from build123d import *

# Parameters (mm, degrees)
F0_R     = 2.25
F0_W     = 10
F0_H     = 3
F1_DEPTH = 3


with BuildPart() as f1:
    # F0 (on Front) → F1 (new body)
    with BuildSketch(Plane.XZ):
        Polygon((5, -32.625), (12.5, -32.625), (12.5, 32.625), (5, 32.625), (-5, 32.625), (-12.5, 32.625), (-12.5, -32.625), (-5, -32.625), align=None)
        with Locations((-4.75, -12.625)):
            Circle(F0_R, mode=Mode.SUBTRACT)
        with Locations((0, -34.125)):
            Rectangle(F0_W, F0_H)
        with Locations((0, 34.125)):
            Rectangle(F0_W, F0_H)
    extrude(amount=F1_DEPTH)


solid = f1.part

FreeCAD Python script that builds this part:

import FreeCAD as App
import Part
import Sketcher


def add_polygon(sketch, points):
    """Adds a closed chain of lines whose ends are joined by coincident constraints."""
    first, n = sketch.GeometryCount, len(points)
    for a, b in zip(points, points[1:] + points[:1]):
        sketch.addGeometry(Part.LineSegment(App.Vector(*a, 0), App.Vector(*b, 0)), False)
    for i in range(n):
        sketch.addConstraint(Sketcher.Constraint("Coincident", first + i, 2, first + (i + 1) % n, 1))

doc = App.newDocument("Part")
params = doc.addObject("Spreadsheet::Sheet", "Params")
for row, (alias, value) in enumerate([
    ("sketch1_diameter", "4.5 mm"),
    ("sketch1_width", "10 mm"),
    ("sketch1_height", "3 mm"),
    ("sketch1_width2", "7.5 mm"),
    ("sketch1_height2", "65.25 mm"),
    ("pad1_length", "3 mm"),
], start=1):
    params.set(f"A{row}", alias)
    params.set(f"B{row}", "=" + value)
    params.setAlias(f"B{row}", alias)

body = doc.addObject("PartDesign::Body", "Body")

# Sketch on XZ plane
sketch1 = body.newObject("Sketcher::SketchObject", "Sketch")
sketch1.AttachmentSupport = (doc.getObject("XZ_Plane"), [""])
sketch1.MapMode = "FlatFace"
add_polygon(sketch1, [(12.5, -32.625), (12.5, 32.625), (5, 32.625), (5, 35.625), (-5, 35.625), (-5, 32.625), (-12.5, 32.625), (-12.5, -32.625), (-5, -32.625), (-5, -35.625), (5, -35.625), (5, -32.625)])  # lines 0-11
sketch1.addGeometry(Part.Circle(App.Vector(-4.75, -12.625, 0), App.Vector(0, 0, 1), 2.25), False)  # 12
sketch1.addConstraint(Sketcher.Constraint("Vertical", 0))
sketch1.addConstraint(Sketcher.Constraint("Horizontal", 1))
sketch1.addConstraint(Sketcher.Constraint("Vertical", 2))
sketch1.addConstraint(Sketcher.Constraint("Horizontal", 3))
sketch1.addConstraint(Sketcher.Constraint("Vertical", 4))
sketch1.addConstraint(Sketcher.Constraint("Horizontal", 5))
sketch1.addConstraint(Sketcher.Constraint("Vertical", 6))
sketch1.addConstraint(Sketcher.Constraint("Horizontal", 7))
sketch1.addConstraint(Sketcher.Constraint("Vertical", 8))
sketch1.addConstraint(Sketcher.Constraint("Horizontal", 9))
sketch1.addConstraint(Sketcher.Constraint("Vertical", 10))
sketch1.addConstraint(Sketcher.Constraint("Horizontal", 11))
sketch1.addConstraint(Sketcher.Constraint("Symmetric", 0, 2, 6, 2, -1, 1))
sketch1.addConstraint(Sketcher.Constraint("Symmetric", 2, 2, 8, 2, -1, 1))
sketch1.addConstraint(Sketcher.Constraint("Symmetric", 4, 2, 10, 2, -1, 1))
sketch1.addConstraint(Sketcher.Constraint("Symmetric", 1, 2, 4, 2, -2))
sketch1.addConstraint(Sketcher.Constraint("Diameter", 12, 4.5))
sketch1.addConstraint(Sketcher.Constraint("DistanceX", 3, 2, 3, 1, 10.0))
sketch1.addConstraint(Sketcher.Constraint("DistanceY", 2, 1, 2, 2, 3.0))
sketch1.addConstraint(Sketcher.Constraint("DistanceX", 1, 2, 1, 1, 7.5))
sketch1.addConstraint(Sketcher.Constraint("DistanceY", 6, 2, 12, 3, 20.0))
sketch1.addConstraint(Sketcher.Constraint("DistanceY", 0, 1, 0, 2, 65.25))
sketch1.addConstraint(Sketcher.Constraint("DistanceX", 12, 3, -1, 1, 4.75))
sketch1.setExpression("Constraints[28]", "Params.sketch1_diameter")
sketch1.setExpression("Constraints[29]", "Params.sketch1_width")
sketch1.setExpression("Constraints[30]", "Params.sketch1_height")
sketch1.setExpression("Constraints[31]", "Params.sketch1_width2")
sketch1.setExpression("Constraints[33]", "Params.sketch1_height2")
pad1 = body.newObject("PartDesign::Pad", "Pad")
pad1.Profile = sketch1
pad1.setExpression("Length", "Params.pad1_length")

doc.recompute()
